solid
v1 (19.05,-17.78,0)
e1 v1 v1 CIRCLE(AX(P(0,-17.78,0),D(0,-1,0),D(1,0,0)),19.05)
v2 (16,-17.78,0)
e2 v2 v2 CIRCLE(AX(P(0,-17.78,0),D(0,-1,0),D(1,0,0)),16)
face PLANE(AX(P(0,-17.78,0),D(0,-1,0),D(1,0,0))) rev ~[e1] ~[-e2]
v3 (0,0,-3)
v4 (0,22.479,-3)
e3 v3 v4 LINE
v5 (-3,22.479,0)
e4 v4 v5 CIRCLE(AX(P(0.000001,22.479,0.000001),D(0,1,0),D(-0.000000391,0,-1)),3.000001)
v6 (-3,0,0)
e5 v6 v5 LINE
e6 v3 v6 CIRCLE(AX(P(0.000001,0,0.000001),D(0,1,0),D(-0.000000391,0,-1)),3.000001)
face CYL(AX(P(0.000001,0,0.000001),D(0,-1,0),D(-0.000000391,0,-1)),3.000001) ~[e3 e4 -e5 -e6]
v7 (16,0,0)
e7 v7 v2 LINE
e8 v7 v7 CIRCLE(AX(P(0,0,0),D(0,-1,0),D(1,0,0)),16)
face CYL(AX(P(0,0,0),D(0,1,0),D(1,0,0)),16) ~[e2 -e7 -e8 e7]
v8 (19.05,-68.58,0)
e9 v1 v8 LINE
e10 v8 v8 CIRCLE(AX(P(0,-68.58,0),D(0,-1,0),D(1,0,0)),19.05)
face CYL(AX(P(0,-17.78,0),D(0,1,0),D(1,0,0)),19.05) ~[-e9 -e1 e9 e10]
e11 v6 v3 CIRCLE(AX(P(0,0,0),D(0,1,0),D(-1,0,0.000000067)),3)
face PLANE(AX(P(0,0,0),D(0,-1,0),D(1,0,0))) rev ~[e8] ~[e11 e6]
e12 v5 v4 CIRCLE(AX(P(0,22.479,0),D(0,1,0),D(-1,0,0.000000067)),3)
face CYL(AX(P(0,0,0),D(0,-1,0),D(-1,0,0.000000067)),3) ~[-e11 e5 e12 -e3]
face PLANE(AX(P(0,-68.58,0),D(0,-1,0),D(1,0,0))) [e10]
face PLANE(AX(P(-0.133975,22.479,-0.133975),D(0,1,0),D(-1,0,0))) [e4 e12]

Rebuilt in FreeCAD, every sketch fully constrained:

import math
import FreeCAD as App
import Part
import Sketcher

V = App.Vector
Q = App.Units.Quantity

doc = App.newDocument("Part")
body = doc.addObject("PartDesign::Body", "Body")

sketch1 = body.newObject("Sketcher::SketchObject", "Sketch")
sketch1.AttachmentSupport = (doc.getObject("XZ_Plane"), [""])
sketch1.MapMode = "FlatFace"
sketch1.addGeometry(Part.Circle(V(0, 0, 0), V(0, 0, 1), 16), False)
sketch1.addConstraint([
    Sketcher.Constraint("Coincident", 0, 3, -1, 1),
    Sketcher.Constraint("Diameter", 0, Q("32 mm")),
])
pad1 = body.newObject("PartDesign::Pad", "Pad")
pad1.Profile = sketch1
pad1.Length = Q("0.7 in")

sketch2 = body.newObject("Sketcher::SketchObject", "Sketch001")
sketch2.AttachmentSupport = (doc.getObject("XZ_Plane"), [""])
sketch2.MapMode = "FlatFace"
sketch2.AttachmentOffset = App.Placement(V(0, 0, 0.7 * 25.4), App.Rotation())
sketch2.addGeometry(Part.Circle(V(0, 0, 0), V(0, 0, 1), 19), False)
sketch2.addConstraint([
    Sketcher.Constraint("Coincident", 0, 3, -1, 1),
    Sketcher.Constraint("Diameter", 0, Q("1.5 in")),
])
pad2 = body.newObject("PartDesign::Pad", "Pad001")
pad2.Profile = sketch2
pad2.Length = Q("2 in")

sketch3 = body.newObject("Sketcher::SketchObject", "Sketch002")
sketch3.AttachmentSupport = (doc.getObject("XZ_Plane"), [""])
sketch3.MapMode = "FlatFace"
sketch3.addGeometry([
    Part.ArcOfCircle(Part.Circle(V(0, 0, 0), V(0, 0, 1), 3), math.radians(-180), math.radians(-90)),
    Part.ArcOfCircle(Part.Circle(V(0, 0, 0), V(0, 0, 1), 3), math.radians(-90), math.radians(180)),
], False)
sketch3.addConstraint([
    Sketcher.Constraint("Tangent", 0, 1, 1, 2),
    Sketcher.Constraint("Coincident", 1, 1, 0, 2),
    Sketcher.Constraint("Coincident", 0, 3, -1, 1),
    Sketcher.Constraint("PointOnObject", 0, 1, -1),
    Sketcher.Constraint("PointOnObject", 1, 1, -2),
    Sketcher.Constraint("Radius", 0, Q("3.000001 mm")),
])
pad3 = body.newObject("PartDesign::Pad", "Pad002")
pad3.Profile = sketch3
pad3.Length = Q("0.885 in")
pad3.Reversed = True

doc.recompute()
